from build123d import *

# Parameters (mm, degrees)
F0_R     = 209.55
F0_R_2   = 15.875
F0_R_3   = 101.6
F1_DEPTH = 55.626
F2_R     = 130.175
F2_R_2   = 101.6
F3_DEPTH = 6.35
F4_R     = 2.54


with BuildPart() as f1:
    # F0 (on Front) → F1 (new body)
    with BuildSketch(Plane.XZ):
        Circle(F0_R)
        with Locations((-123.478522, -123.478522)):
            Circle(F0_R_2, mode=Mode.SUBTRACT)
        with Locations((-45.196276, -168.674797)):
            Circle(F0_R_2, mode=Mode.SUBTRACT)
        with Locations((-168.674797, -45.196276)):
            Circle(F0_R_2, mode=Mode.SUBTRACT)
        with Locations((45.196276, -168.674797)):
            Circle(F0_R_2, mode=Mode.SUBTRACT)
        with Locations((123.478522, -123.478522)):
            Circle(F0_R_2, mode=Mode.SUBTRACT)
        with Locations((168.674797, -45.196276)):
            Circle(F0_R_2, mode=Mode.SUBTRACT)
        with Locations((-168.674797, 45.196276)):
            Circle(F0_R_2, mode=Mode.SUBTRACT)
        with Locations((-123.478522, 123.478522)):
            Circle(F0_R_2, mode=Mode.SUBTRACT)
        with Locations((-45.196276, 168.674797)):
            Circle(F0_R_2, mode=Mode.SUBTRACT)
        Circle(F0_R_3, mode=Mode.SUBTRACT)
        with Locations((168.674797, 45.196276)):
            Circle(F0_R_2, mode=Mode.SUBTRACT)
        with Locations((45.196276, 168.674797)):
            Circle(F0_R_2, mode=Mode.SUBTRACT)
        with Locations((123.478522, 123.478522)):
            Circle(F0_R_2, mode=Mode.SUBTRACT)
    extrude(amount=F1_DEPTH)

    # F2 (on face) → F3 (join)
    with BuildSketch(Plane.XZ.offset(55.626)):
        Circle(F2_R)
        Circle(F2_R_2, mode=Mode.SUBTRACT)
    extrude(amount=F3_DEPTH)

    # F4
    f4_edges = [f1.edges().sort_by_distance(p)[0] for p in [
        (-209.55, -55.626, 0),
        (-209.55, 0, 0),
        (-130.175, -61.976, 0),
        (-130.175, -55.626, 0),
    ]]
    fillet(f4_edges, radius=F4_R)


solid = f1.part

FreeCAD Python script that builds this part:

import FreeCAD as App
import Part
import Sketcher
Q = App.Units.Quantity


def edges_at(feature, points):
    """Names of the edges that pass closest to the given points."""
    edges = feature.Shape.Edges
    near = lambda p: min(range(len(edges)), key=lambda i: edges[i].distToShape(Part.Vertex(*p))[0])
    return sorted({f"Edge{near(p) + 1}" for p in points})

doc = App.newDocument("Part")
body = doc.addObject("PartDesign::Body", "Body")

# Sketch on XZ plane
sketch1 = body.newObject("Sketcher::SketchObject", "Sketch")
sketch1.AttachmentSupport = (doc.getObject("XZ_Plane"), [""])
sketch1.MapMode = "FlatFace"
sketch1.addGeometry(Part.Circle(App.Vector(0, 0, 0), App.Vector(0, 0, 1), 210), False)
sketch1.addGeometry(Part.Circle(App.Vector(-123, -123, 0), App.Vector(0, 0, 1), 16), False)
sketch1.addGeometry(Part.Circle(App.Vector(-45, -169, 0), App.Vector(0, 0, 1), 16), False)
sketch1.addGeometry(Part.Circle(App.Vector(-169, -45, 0), App.Vector(0, 0, 1), 16), False)
sketch1.addGeometry(Part.Circle(App.Vector(45, -169, 0), App.Vector(0, 0, 1), 16), False)
sketch1.addGeometry(Part.Circle(App.Vector(123, -123, 0), App.Vector(0, 0, 1), 16), False)
sketch1.addGeometry(Part.Circle(App.Vector(169, -45, 0), App.Vector(0, 0, 1), 16), False)
sketch1.addGeometry(Part.Circle(App.Vector(-169, 45, 0), App.Vector(0, 0, 1), 16), False)
sketch1.addGeometry(Part.Circle(App.Vector(-123, 123, 0), App.Vector(0, 0, 1), 16), False)
sketch1.addGeometry(Part.Circle(App.Vector(-45, 169, 0), App.Vector(0, 0, 1), 16), False)
sketch1.addGeometry(Part.Circle(App.Vector(0, 0, 0), App.Vector(0, 0, 1), 102), False)
sketch1.addGeometry(Part.Circle(App.Vector(169, 45, 0), App.Vector(0, 0, 1), 16), False)
sketch1.addGeometry(Part.Circle(App.Vector(45, 169, 0), App.Vector(0, 0, 1), 16), False)
sketch1.addGeometry(Part.Circle(App.Vector(123, 123, 0), App.Vector(0, 0, 1), 16), False)
sketch1.addConstraint(Sketcher.Constraint("Coincident", 0, 3, -1, 1))
sketch1.addConstraint(Sketcher.Constraint("Coincident", 10, 3, -1, 1))
sketch1.addConstraint(Sketcher.Constraint("Equal", 1, 2))
sketch1.addConstraint(Sketcher.Constraint("Equal", 2, 3))
sketch1.addConstraint(Sketcher.Constraint("Equal", 3, 4))
sketch1.addConstraint(Sketcher.Constraint("Equal", 4, 5))
sketch1.addConstraint(Sketcher.Constraint("Equal", 5, 6))
sketch1.addConstraint(Sketcher.Constraint("Equal", 6, 7))
sketch1.addConstraint(Sketcher.Constraint("Equal", 7, 8))
sketch1.addConstraint(Sketcher.Constraint("Equal", 8, 9))
sketch1.addConstraint(Sketcher.Constraint("Equal", 9, 11))
sketch1.addConstraint(Sketcher.Constraint("Equal", 11, 12))
sketch1.addConstraint(Sketcher.Constraint("Equal", 12, 13))
sketch1.addConstraint(Sketcher.Constraint("Symmetric", 6, 3, 7, 3, -1, 1))
sketch1.addConstraint(Sketcher.Constraint("Symmetric", 5, 3, 8, 3, -1, 1))
sketch1.addConstraint(Sketcher.Constraint("Symmetric", 4, 3, 9, 3, -1, 1))
sketch1.addConstraint(Sketcher.Constraint("Symmetric", 3, 3, 11, 3, -1, 1))
sketch1.addConstraint(Sketcher.Constraint("Symmetric", 2, 3, 12, 3, -1, 1))
sketch1.addConstraint(Sketcher.Constraint("Symmetric", 1, 3, 13, 3, -1, 1))
sketch1.addConstraint(Sketcher.Constraint("Symmetric", 2, 3, 4, 3, -2))
sketch1.addConstraint(Sketcher.Constraint("Symmetric", 1, 3, 5, 3, -2))
sketch1.addConstraint(Sketcher.Constraint("Symmetric", 3, 3, 6, 3, -2))
sketch1.addConstraint(Sketcher.Constraint("Diameter", 10, Q("8 in")))
sketch1.addConstraint(Sketcher.Constraint("Diameter", 0, Q("16.5 in")))
sketch1.addConstraint(Sketcher.Constraint("Diameter", 1, Q("1.25 in")))
sketch1.addConstraint(Sketcher.Constraint("DistanceX", 1, 3, 4, 3, 168.674798))
sketch1.addConstraint(Sketcher.Constraint("DistanceY", 1, 3, 7, 3, 168.674798))
sketch1.addConstraint(Sketcher.Constraint("DistanceX", 1, 3, -1, 1, 123.478522))
sketch1.addConstraint(Sketcher.Constraint("DistanceY", 1, 3, -1, 1, 123.478522))
sketch1.addConstraint(Sketcher.Constraint("DistanceX", 3, 3, 2, 3, 123.478521))
sketch1.addConstraint(Sketcher.Constraint("DistanceY", 2, 3, 3, 3, 123.478521))
pad1 = body.newObject("PartDesign::Pad", "Pad")
pad1.Profile = sketch1
pad1.Length = Q("2.19 in")

# Sketch on XZ plane
sketch2 = body.newObject("Sketcher::SketchObject", "Sketch001")
sketch2.AttachmentSupport = (doc.getObject("XZ_Plane"), [""])
sketch2.MapMode = "FlatFace"
sketch2.AttachmentOffset = App.Placement(App.Vector(0, 0, 2.19 * 25.4), App.Rotation())
sketch2.addGeometry(Part.Circle(App.Vector(0, 0, 0), App.Vector(0, 0, 1), 130), False)
sketch2.addGeometry(Part.Circle(App.Vector(0, 0, 0), App.Vector(0, 0, 1), 102), False)
sketch2.addConstraint(Sketcher.Constraint("Coincident", 0, 3, -1, 1))
sketch2.addConstraint(Sketcher.Constraint("Coincident", 1, 3, -1, 1))
sketch2.addConstraint(Sketcher.Constraint("Diameter", 1, Q("8 in")))
sketch2.addConstraint(Sketcher.Constraint("Diameter", 0, Q("10.25 in")))
pad2 = body.newObject("PartDesign::Pad", "Pad001")
pad2.Profile = sketch2
pad2.Length = Q("0.25 in")
doc.recompute()

fillet = body.newObject("PartDesign::Fillet", "Fillet")
fillet.Base = (pad2, edges_at(pad2, [
    (-209.55, -55.626, 0),
    (-209.55, 0, 0),
    (-130.175, -61.976, 0),
    (-130.175, -55.626, 0),
]))
fillet.Radius = Q("0.1 in")

doc.recompute()
